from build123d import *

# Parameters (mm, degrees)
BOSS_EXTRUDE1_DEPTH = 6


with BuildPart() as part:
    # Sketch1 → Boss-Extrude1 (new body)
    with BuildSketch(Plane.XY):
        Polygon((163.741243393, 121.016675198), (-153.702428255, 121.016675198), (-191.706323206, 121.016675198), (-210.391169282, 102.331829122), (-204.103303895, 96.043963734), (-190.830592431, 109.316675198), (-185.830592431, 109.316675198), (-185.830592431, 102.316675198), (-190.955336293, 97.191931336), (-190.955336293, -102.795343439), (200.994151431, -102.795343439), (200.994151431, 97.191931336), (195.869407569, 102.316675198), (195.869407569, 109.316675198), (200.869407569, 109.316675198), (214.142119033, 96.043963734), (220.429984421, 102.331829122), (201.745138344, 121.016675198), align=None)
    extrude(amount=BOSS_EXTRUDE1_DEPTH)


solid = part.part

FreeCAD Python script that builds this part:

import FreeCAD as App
import Part
import Sketcher

V = App.Vector
Q = App.Units.Quantity

doc = App.newDocument("Part")
body = doc.addObject("PartDesign::Body", "Body")

sketch1 = doc.addObject("Sketcher::SketchObject", "Sketch")
body.addObject(sketch1)
sketch1.AttachmentSupport = (doc.XY_Plane, [""])
sketch1.MapMode = "FlatFace"
sketch1.addGeometry(Part.LineSegment(V(-192, 121, 0), V(-210, 102, 0)), False)
sketch1.addGeometry(Part.LineSegment(V(-210, 102, 0), V(-204, 96, 0)), False)
sketch1.addGeometry(Part.LineSegment(V(-204, 96, 0), V(-191, 109, 0)), False)
sketch1.addGeometry(Part.LineSegment(V(-191, 109, 0), V(-186, 109, 0)), False)
sketch1.addGeometry(Part.LineSegment(V(-186, 109, 0), V(-186, 102, 0)), False)
sketch1.addGeometry(Part.LineSegment(V(-186, 102, 0), V(-191, 97, 0)), False)
sketch1.addGeometry(Part.LineSegment(V(-191, 97, 0), V(-191, -103, 0)), False)
sketch1.addGeometry(Part.LineSegment(V(-191, -103, 0), V(201, -103, 0)), False)
sketch1.addGeometry(Part.LineSegment(V(201, -103, 0), V(201, 97, 0)), False)
sketch1.addGeometry(Part.LineSegment(V(201, 97, 0), V(196, 102, 0)), False)
sketch1.addGeometry(Part.LineSegment(V(196, 102, 0), V(196, 109, 0)), False)
sketch1.addGeometry(Part.LineSegment(V(196, 109, 0), V(201, 109, 0)), False)
sketch1.addGeometry(Part.LineSegment(V(201, 109, 0), V(214, 96, 0)), False)
sketch1.addGeometry(Part.LineSegment(V(214, 96, 0), V(220, 102, 0)), False)
sketch1.addGeometry(Part.LineSegment(V(220, 102, 0), V(202, 121, 0)), False)
sketch1.addGeometry(Part.LineSegment(V(202, 121, 0), V(-192, 121, 0)), False)
sketch1.addConstraint(Sketcher.Constraint("Coincident", 0, 2, 1, 1))
sketch1.addConstraint(Sketcher.Constraint("Coincident", 1, 2, 2, 1))
sketch1.addConstraint(Sketcher.Constraint("Coincident", 2, 2, 3, 1))
sketch1.addConstraint(Sketcher.Constraint("Coincident", 3, 2, 4, 1))
sketch1.addConstraint(Sketcher.Constraint("Coincident", 4, 2, 5, 1))
sketch1.addConstraint(Sketcher.Constraint("Coincident", 5, 2, 6, 1))
sketch1.addConstraint(Sketcher.Constraint("Coincident", 6, 2, 7, 1))
sketch1.addConstraint(Sketcher.Constraint("Coincident", 7, 2, 8, 1))
sketch1.addConstraint(Sketcher.Constraint("Coincident", 8, 2, 9, 1))
sketch1.addConstraint(Sketcher.Constraint("Coincident", 9, 2, 10, 1))
sketch1.addConstraint(Sketcher.Constraint("Coincident", 10, 2, 11, 1))
sketch1.addConstraint(Sketcher.Constraint("Coincident", 11, 2, 12, 1))
sketch1.addConstraint(Sketcher.Constraint("Coincident", 12, 2, 13, 1))
sketch1.addConstraint(Sketcher.Constraint("Coincident", 13, 2, 14, 1))
sketch1.addConstraint(Sketcher.Constraint("Coincident", 14, 2, 15, 1))
sketch1.addConstraint(Sketcher.Constraint("Coincident", 15, 2, 0, 1))
sketch1.addConstraint(Sketcher.Constraint("Horizontal", 3))
sketch1.addConstraint(Sketcher.Constraint("Vertical", 4))
sketch1.addConstraint(Sketcher.Constraint("Vertical", 6))
sketch1.addConstraint(Sketcher.Constraint("Horizontal", 7))
sketch1.addConstraint(Sketcher.Constraint("Vertical", 8))
sketch1.addConstraint(Sketcher.Constraint("Vertical", 10))
sketch1.addConstraint(Sketcher.Constraint("Horizontal", 11))
sketch1.addConstraint(Sketcher.Constraint("Horizontal", 15))
sketch1.addConstraint(Sketcher.Constraint("Perpendicular", 0, 1))
sketch1.addConstraint(Sketcher.Constraint("Perpendicular", 1, 2))
sketch1.addConstraint(Sketcher.Constraint("Parallel", 2, 5))
sketch1.addConstraint(Sketcher.Constraint("Perpendicular", 5, 9))
sketch1.addConstraint(Sketcher.Constraint("Parallel", 9, 12))
sketch1.addConstraint(Sketcher.Constraint("Perpendicular", 12, 13))
sketch1.addConstraint(Sketcher.Constraint("Perpendicular", 13, 14))
sketch1.addConstraint(Sketcher.Constraint("Horizontal", 5, 2, 8, 2))
sketch1.addConstraint(Sketcher.Constraint("Horizontal", 4, 2, 9, 2))
sketch1.addConstraint(Sketcher.Constraint("Horizontal", 3, 2, 10, 2))
sketch1.addConstraint(Sketcher.Constraint("Horizontal", 1, 2, 12, 2))
sketch1.addConstraint(Sketcher.Constraint("Horizontal", 0, 2, 13, 2))
sketch1.addConstraint(Sketcher.Constraint("Equal", 3, 11))
sketch1.addConstraint(Sketcher.Constraint("Equal", 5, 9))
sketch1.addConstraint(Sketcher.Constraint("DistanceX", 3, 1, 3, 2, Q("5 mm")))
sketch1.addConstraint(Sketcher.Constraint("DistanceY", 4, 2, 4, 1, Q("7 mm")))
sketch1.addConstraint(Sketcher.Constraint("DistanceX", 4, 2, 9, 2, Q("381.7 mm")))
sketch1.addConstraint(Sketcher.Constraint("DistanceY", 11, 2, 14, 2, Q("11.7 mm")))
sketch1.addConstraint(Sketcher.Constraint("DistanceX", 15, 2, 15, 1, Q("393.451462 mm")))
sketch1.addConstraint(Sketcher.Constraint("Distance", 2, Q("18.770449 mm")))
sketch1.addConstraint(Sketcher.Constraint("DistanceX", 7, 1, 7, 2, Q("391.949488 mm")))
sketch1.addConstraint(Sketcher.Constraint("DistanceY", 6, 2, 6, 1, Q("199.987275 mm")))
sketch1.addConstraint(Sketcher.Constraint("DistanceX", 0, 2, -1, 1, Q("210.391169 mm")))
sketch1.addConstraint(Sketcher.Constraint("DistanceY", -1, 1, 0, 2, Q("102.331829 mm")))
pad1 = doc.addObject("PartDesign::Pad", "Pad")
body.addObject(pad1)
pad1.Profile = sketch1
pad1.Length = 6

doc.recompute()
